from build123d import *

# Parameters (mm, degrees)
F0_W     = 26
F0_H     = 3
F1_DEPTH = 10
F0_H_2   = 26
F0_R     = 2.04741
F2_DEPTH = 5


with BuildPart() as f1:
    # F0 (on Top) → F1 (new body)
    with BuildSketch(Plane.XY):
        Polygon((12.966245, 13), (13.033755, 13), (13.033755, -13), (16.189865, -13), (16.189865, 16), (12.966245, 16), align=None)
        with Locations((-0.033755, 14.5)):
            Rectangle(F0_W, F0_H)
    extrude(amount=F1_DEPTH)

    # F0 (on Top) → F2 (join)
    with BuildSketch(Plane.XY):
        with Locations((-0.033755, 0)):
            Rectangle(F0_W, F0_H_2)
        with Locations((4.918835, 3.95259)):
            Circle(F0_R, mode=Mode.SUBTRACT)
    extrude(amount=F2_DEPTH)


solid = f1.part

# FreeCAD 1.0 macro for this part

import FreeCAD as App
import Part
import Sketcher
from FreeCAD import Vector


def add_polygon(sketch, points):
    """Adds a closed chain of lines whose ends are joined by coincident constraints."""
    first, n = sketch.GeometryCount, len(points)
    for a, b in zip(points, points[1:] + points[:1]):
        sketch.addGeometry(Part.LineSegment(App.Vector(*a, 0), App.Vector(*b, 0)), False)
    for i in range(n):
        sketch.addConstraint(Sketcher.Constraint("Coincident", first + i, 2, first + (i + 1) % n, 1))

doc = App.newDocument("Part")
params = doc.addObject("Spreadsheet::Sheet", "Params")
for row, (alias, value) in enumerate([
    ("sketch1_height", "26 mm"),
    ("sketch1_height2", "29 mm"),
    ("pad1_length", "10 mm"),
    ("sketch2_width", "26 mm"),
    ("pad2_length", "5 mm"),
], start=1):
    params.set(f"A{row}", alias)
    params.set(f"B{row}", "=" + value)
    params.setAlias(f"B{row}", alias)

body = doc.addObject("PartDesign::Body", "Body")

# Sketch on XY plane
sketch1 = body.newObject("Sketcher::SketchObject", "Sketch")
sketch1.AttachmentSupport = (doc.getObject("XY_Plane"), [""])
sketch1.MapMode = "FlatFace"
add_polygon(sketch1, [(13, 13), (13, -13), (16.2, -13), (16.2, 16), (-13, 16), (-13, 13)])  # lines 0-5
sketch1.addConstraint(Sketcher.Constraint("Vertical", 0))
sketch1.addConstraint(Sketcher.Constraint("Horizontal", 1))
sketch1.addConstraint(Sketcher.Constraint("Vertical", 2))
sketch1.addConstraint(Sketcher.Constraint("Horizontal", 3))
sketch1.addConstraint(Sketcher.Constraint("Vertical", 4))
sketch1.addConstraint(Sketcher.Constraint("Horizontal", 5))
sketch1.addConstraint(Sketcher.Constraint("Symmetric", 0, 2, 4, 2, -1, 1))
sketch1.addConstraint(Sketcher.Constraint("DistanceY", 0, 2, 0, 1, 26.0))
sketch1.addConstraint(Sketcher.Constraint("DistanceY", 2, 1, 2, 2, 29.0))
sketch1.addConstraint(Sketcher.Constraint("DistanceX", 1, 1, 1, 2, 3.15611))
sketch1.addConstraint(Sketcher.Constraint("DistanceX", 3, 2, 3, 1, 29.22362))
sketch1.setExpression("Constraints[13]", "Params.sketch1_height")
sketch1.setExpression("Constraints[14]", "Params.sketch1_height2")
pad1 = body.newObject("PartDesign::Pad", "Pad")
pad1.Profile = sketch1
pad1.setExpression("Length", "Params.pad1_length")

# Sketch on XY plane
sketch2 = body.newObject("Sketcher::SketchObject", "Sketch001")
sketch2.AttachmentSupport = (doc.getObject("XY_Plane"), [""])
sketch2.MapMode = "FlatFace"
add_polygon(sketch2, [(-13, 13), (-13, -13), (13, -13), (13, 13)])  # lines 0-3
sketch2.addGeometry(Part.Circle(Vector(4.9, 4, 0), Vector(0, 0, 1), 2), False)  # 4
sketch2.addConstraint(Sketcher.Constraint("Vertical", 0))
sketch2.addConstraint(Sketcher.Constraint("Horizontal", 1))
sketch2.addConstraint(Sketcher.Constraint("Vertical", 2))
sketch2.addConstraint(Sketcher.Constraint("Horizontal", 3))
sketch2.addConstraint(Sketcher.Constraint("Equal", 3, 0))
sketch2.addConstraint(Sketcher.Constraint("DistanceX", 1, 1, 1, 2, 26.0))
sketch2.addConstraint(Sketcher.Constraint("DistanceY", 0, 2, -1, 1, 13.0))
sketch2.addConstraint(Sketcher.Constraint("Diameter", 4, 4.09482))
sketch2.addConstraint(Sketcher.Constraint("DistanceY", -1, 1, 4, 3, 3.95259))
sketch2.addConstraint(Sketcher.Constraint("DistanceX", 0, 2, 4, 3, 17.95259))
sketch2.addConstraint(Sketcher.Constraint("DistanceX", -1, 1, 4, 3, 4.918835))
sketch2.setExpression("Constraints[9]", "Params.sketch2_width")
pad2 = body.newObject("PartDesign::Pad", "Pad001")
pad2.Profile = sketch2
pad2.setExpression("Length", "Params.pad2_length")

doc.recompute()
